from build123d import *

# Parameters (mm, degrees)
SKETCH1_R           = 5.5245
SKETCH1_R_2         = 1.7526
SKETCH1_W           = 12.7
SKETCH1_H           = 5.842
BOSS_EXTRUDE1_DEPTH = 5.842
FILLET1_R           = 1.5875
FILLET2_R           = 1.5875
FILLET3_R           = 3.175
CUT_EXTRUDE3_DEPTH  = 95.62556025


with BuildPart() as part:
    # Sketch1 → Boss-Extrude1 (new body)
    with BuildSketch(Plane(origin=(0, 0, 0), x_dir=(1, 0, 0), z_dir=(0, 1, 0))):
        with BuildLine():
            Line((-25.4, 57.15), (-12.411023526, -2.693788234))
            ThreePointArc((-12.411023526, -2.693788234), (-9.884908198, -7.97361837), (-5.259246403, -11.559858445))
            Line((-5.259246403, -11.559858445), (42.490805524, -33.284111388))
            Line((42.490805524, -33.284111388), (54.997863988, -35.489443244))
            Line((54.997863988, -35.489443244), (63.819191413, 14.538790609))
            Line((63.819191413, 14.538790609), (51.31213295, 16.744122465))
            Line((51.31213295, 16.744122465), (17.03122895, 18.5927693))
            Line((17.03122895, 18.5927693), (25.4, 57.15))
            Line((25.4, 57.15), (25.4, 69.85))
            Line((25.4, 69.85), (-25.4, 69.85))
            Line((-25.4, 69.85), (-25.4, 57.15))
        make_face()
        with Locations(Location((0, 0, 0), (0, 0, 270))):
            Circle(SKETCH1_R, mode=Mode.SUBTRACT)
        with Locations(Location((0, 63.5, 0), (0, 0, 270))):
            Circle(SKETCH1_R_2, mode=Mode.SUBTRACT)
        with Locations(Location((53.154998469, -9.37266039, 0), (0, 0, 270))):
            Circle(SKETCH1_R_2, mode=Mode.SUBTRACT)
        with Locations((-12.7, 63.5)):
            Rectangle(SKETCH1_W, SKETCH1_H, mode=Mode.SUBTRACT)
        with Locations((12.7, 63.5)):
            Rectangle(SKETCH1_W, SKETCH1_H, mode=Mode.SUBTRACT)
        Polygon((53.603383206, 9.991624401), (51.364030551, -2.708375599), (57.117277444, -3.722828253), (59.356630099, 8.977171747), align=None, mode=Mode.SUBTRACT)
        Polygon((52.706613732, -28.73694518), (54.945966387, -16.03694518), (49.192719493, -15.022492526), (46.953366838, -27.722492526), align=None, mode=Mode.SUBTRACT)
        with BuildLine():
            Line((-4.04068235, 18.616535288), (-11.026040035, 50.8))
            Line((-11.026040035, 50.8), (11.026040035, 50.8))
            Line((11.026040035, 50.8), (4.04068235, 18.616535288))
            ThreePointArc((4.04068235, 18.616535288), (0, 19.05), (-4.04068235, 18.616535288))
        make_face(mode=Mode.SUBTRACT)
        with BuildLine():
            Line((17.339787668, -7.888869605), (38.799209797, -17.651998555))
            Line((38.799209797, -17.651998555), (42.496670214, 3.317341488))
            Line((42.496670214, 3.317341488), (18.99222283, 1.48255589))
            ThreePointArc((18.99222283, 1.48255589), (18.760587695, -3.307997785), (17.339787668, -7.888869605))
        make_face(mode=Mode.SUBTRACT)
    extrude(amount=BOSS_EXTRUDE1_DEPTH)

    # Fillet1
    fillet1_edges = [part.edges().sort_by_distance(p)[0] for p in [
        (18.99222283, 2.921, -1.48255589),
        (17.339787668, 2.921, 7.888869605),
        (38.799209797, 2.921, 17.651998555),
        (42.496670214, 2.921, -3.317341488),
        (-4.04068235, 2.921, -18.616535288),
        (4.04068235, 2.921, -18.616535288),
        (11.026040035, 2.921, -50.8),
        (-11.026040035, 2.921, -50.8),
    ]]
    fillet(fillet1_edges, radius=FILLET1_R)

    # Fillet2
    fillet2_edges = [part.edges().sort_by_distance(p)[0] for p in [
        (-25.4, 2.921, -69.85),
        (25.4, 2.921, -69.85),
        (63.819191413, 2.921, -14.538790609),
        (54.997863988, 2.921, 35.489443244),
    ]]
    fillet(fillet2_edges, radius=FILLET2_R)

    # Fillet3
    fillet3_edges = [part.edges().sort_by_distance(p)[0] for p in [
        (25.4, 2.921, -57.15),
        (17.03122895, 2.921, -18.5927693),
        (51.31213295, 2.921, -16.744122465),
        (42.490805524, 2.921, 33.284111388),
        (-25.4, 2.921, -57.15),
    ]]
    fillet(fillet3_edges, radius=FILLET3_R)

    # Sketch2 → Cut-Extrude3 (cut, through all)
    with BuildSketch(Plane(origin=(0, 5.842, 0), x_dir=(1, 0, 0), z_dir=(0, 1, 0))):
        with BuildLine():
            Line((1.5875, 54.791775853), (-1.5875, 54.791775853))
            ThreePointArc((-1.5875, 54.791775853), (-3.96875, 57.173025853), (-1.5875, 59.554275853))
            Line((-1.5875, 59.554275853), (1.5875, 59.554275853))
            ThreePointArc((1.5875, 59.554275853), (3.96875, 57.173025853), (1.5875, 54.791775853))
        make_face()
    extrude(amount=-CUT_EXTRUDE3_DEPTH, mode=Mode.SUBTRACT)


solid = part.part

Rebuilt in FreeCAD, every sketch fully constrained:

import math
import FreeCAD as App
import Part
import Sketcher
from FreeCAD import Vector
Q = App.Units.Quantity


def edges_at(feature, points):
    """Names of the edges that pass closest to the given points."""
    edges = feature.Shape.Edges
    near = lambda p: min(range(len(edges)), key=lambda i: edges[i].distToShape(Part.Vertex(*p))[0])
    return sorted({f"Edge{near(p) + 1}" for p in points})


def add_polygon(sketch, points):
    """Adds a closed chain of lines whose ends are joined by coincident constraints."""
    first, n = sketch.GeometryCount, len(points)
    for a, b in zip(points, points[1:] + points[:1]):
        sketch.addGeometry(Part.LineSegment(App.Vector(*a, 0), App.Vector(*b, 0)), False)
    for i in range(n):
        sketch.addConstraint(Sketcher.Constraint("Coincident", first + i, 2, first + (i + 1) % n, 1))

doc = App.newDocument("Part")
body = doc.addObject("PartDesign::Body", "Body")

sketch1 = body.newObject("Sketcher::SketchObject", "Sketch")
sketch1.AttachmentSupport = (doc.getObject("XZ_Plane"), [""])
sketch1.MapMode = "FlatFace"
sketch1.addGeometry(Part.LineSegment(Vector(-25.4, -57.1, 0), Vector(-12.4, 2.7, 0)), False)
sketch1.addGeometry(Part.ArcOfCircle(Part.Circle(Vector(0, 0, 0), Vector(0, 0, 1), 12.7), math.radians(114), math.radians(168)), False)
sketch1.addGeometry(Part.LineSegment(Vector(-5.3, 11.6, 0), Vector(42.5, 33.3, 0)), False)
sketch1.addGeometry(Part.LineSegment(Vector(42.5, 33.3, 0), Vector(55, 35.5, 0)), False)
sketch1.addGeometry(Part.LineSegment(Vector(55, 35.5, 0), Vector(63.8, -14.5, 0)), False)
sketch1.addGeometry(Part.LineSegment(Vector(63.8, -14.5, 0), Vector(51.3, -16.7, 0)), False)
sketch1.addGeometry(Part.LineSegment(Vector(51.3, -16.7, 0), Vector(17, -18.6, 0)), False)
sketch1.addGeometry(Part.LineSegment(Vector(17, -18.6, 0), Vector(25.4, -57.1, 0)), False)
sketch1.addGeometry(Part.LineSegment(Vector(25.4, -57.1, 0), Vector(25.4, -69.8, 0)), False)
sketch1.addGeometry(Part.LineSegment(Vector(25.4, -69.8, 0), Vector(-25.4, -69.8, 0)), False)
sketch1.addGeometry(Part.LineSegment(Vector(-25.4, -69.8, 0), Vector(-25.4, -57.1, 0)), False)
sketch1.addGeometry(Part.Circle(Vector(0, 0, 0), Vector(0, 0, 1), 5.5), False)
sketch1.addGeometry(Part.LineSegment(Vector(38.8, 17.7, 0), Vector(17.3, 7.9, 0)), False)
sketch1.addGeometry(Part.ArcOfCircle(Part.Circle(Vector(0, 0, 0), Vector(0, 0, 1), 19), math.radians(-4), math.radians(24)), False)
sketch1.addGeometry(Part.LineSegment(Vector(19, -1.5, 0), Vector(42.5, -3.3, 0)), False)
sketch1.addGeometry(Part.LineSegment(Vector(42.5, -3.3, 0), Vector(38.8, 17.7, 0)), False)
add_polygon(sketch1, [(54.9, 16), (52.7, 28.7), (47, 27.7), (49.2, 15)])
sketch1.addGeometry(Part.Circle(Vector(53.2, 9.4, 0), Vector(0, 0, 1), 1.8), False)
add_polygon(sketch1, [(51.4, 2.7), (53.6, -10), (59.4, -9), (57.1, 3.7)])
sketch1.addGeometry(Part.ArcOfCircle(Part.Circle(Vector(0, 0, 0), Vector(0, 0, 1), 19), math.radians(-102), math.radians(-78)), False)
sketch1.addGeometry(Part.LineSegment(Vector(-4, -18.6, 0), Vector(-11, -50.8, 0)), False)
sketch1.addGeometry(Part.LineSegment(Vector(-11, -50.8, 0), Vector(11, -50.8, 0)), False)
sketch1.addGeometry(Part.LineSegment(Vector(11, -50.8, 0), Vector(4, -18.6, 0)), False)
add_polygon(sketch1, [(-6.3, -60.6), (-19.1, -60.6), (-19.1, -66.4), (-6.3, -66.4)])
sketch1.addGeometry(Part.Circle(Vector(0, -63.5, 0), Vector(0, 0, 1), 1.8), False)
add_polygon(sketch1, [(19.1, -60.6), (6.3, -60.6), (6.3, -66.4), (19.1, -66.4)])
sketch1.addConstraint([
    Sketcher.Constraint("Tangent", 0, 2, 1, 2),
    Sketcher.Constraint("Tangent", 1, 1, 2, 1),
    Sketcher.Constraint("Coincident", 2, 2, 3, 1),
    Sketcher.Constraint("Coincident", 3, 2, 4, 1),
    Sketcher.Constraint("Coincident", 4, 2, 5, 1),
    Sketcher.Constraint("Coincident", 5, 2, 6, 1),
    Sketcher.Constraint("Coincident", 6, 2, 7, 1),
    Sketcher.Constraint("Coincident", 7, 2, 8, 1),
    Sketcher.Constraint("Coincident", 8, 2, 9, 1),
    Sketcher.Constraint("Coincident", 9, 2, 10, 1),
    Sketcher.Constraint("Coincident", 10, 2, 0, 1),
    Sketcher.Constraint("Coincident", 12, 2, 13, 2),
    Sketcher.Constraint("Coincident", 13, 1, 14, 1),
    Sketcher.Constraint("Coincident", 14, 2, 15, 1),
    Sketcher.Constraint("Coincident", 15, 2, 12, 1),
    Sketcher.Constraint("Coincident", 25, 1, 26, 1),
    Sketcher.Constraint("Coincident", 26, 2, 27, 1),
    Sketcher.Constraint("Coincident", 27, 2, 28, 1),
    Sketcher.Constraint("Coincident", 28, 2, 25, 2),
    Sketcher.Constraint("Vertical", 8),
    Sketcher.Constraint("Horizontal", 9),
    Sketcher.Constraint("Vertical", 10),
    Sketcher.Constraint("Horizontal", 27),
    Sketcher.Constraint("Horizontal", 29),
    Sketcher.Constraint("Vertical", 30),
    Sketcher.Constraint("Horizontal", 31),
    Sketcher.Constraint("Vertical", 32),
    Sketcher.Constraint("Horizontal", 34),
    Sketcher.Constraint("Vertical", 35),
    Sketcher.Constraint("Horizontal", 36),
    Sketcher.Constraint("Vertical", 37),
    Sketcher.Constraint("Coincident", 1, 3, -1, 1),
    Sketcher.Constraint("Coincident", 11, 3, -1, 1),
    Sketcher.Constraint("Coincident", 13, 3, -1, 1),
    Sketcher.Constraint("Coincident", 25, 3, -1, 1),
    Sketcher.Constraint("Equal", 13, 25),
    Sketcher.Constraint("Equal", 20, 33),
    Sketcher.Constraint("Symmetric", 7, 2, 10, 2, -2),
    Sketcher.Constraint("Symmetric", 32, 2, 34, 2, -2),
    Sketcher.Constraint("Symmetric", 30, 2, 36, 2, -2),
    Sketcher.Constraint("PointOnObject", 33, 3, -2),
    Sketcher.Constraint("Perpendicular", 3, 4),
    Sketcher.Constraint("Perpendicular", 4, 5),
    Sketcher.Constraint("Parallel", 2, 12),
    Sketcher.Constraint("Perpendicular", 5, 15),
    Sketcher.Constraint("Parallel", 15, 16),
    Sketcher.Constraint("Perpendicular", 16, 17),
    Sketcher.Constraint("Perpendicular", 17, 18),
    Sketcher.Constraint("Perpendicular", 18, 19),
    Sketcher.Constraint("Perpendicular", 19, 21),
    Sketcher.Constraint("Perpendicular", 21, 22),
    Sketcher.Constraint("Perpendicular", 22, 23),
    Sketcher.Constraint("Perpendicular", 23, 24),
    Sketcher.Constraint("Parallel", 0, 26),
    Sketcher.Constraint("Parallel", 7, 28),
    Sketcher.Constraint("Horizontal", 25, 1, 28, 2),
    Sketcher.Constraint("Equal", 36, 8),
    Sketcher.Constraint("Equal", 3, 5),
    Sketcher.Constraint("Equal", 12, 14),
    Sketcher.Constraint("Equal", 18, 21),
    Sketcher.Constraint("Equal", 19, 22),
    Sketcher.Constraint("Equal", 26, 28),
    Sketcher.Constraint("Radius", 1, Q("0.5 in")),
    Sketcher.Constraint("DistanceX", 9, 2, 9, 1, Q("2 in")),
    Sketcher.Constraint("Radius", 13, Q("0.75 in")),
    Sketcher.Constraint("Distance", 4, Q("2 in")),
    Sketcher.Constraint("Diameter", 11, Q("0.435 in")),
    Sketcher.Constraint("Diameter", 20, Q("0.138 in")),
    Sketcher.Constraint("DistanceX", 29, 2, 29, 1, Q("0.5 in")),
    Sketcher.Constraint("DistanceY", 26, 2, -1, 1, Q("2 in")),
    Sketcher.Constraint("Angle", 3, Q("10 deg")),
    Sketcher.Constraint("Distance", 3, Q("0.5 in")),
    Sketcher.Constraint("DistanceY", 30, 2, 30, 1, Q("0.23 in")),
    Sketcher.Constraint("DistanceY", 33, 3, -1, 1, Q("2.5 in")),
    Sketcher.Constraint("DistanceY", 18, 2, 17, 2, Q("0.5 in")),
    Sketcher.Constraint("DistanceX", 32, 2, 34, 2, Q("0.5 in")),
    Sketcher.Constraint("Distance", 17, Q("0.23 in")),
    Sketcher.Constraint("DistanceY", 7, 2, -1, 1, Q("2.25 in")),
    Sketcher.Constraint("DistanceY", 29, 2, -1, 1, Q("2.385 in")),
    Sketcher.Constraint("DistanceX", 27, 1, 27, 2, Q("22.05208 mm")),
    Sketcher.Constraint("DistanceX", -1, 1, 20, 3, Q("53.154998 mm")),
    Sketcher.Constraint("DistanceY", -1, 1, 15, 2, Q("17.651999 mm")),
    Sketcher.Constraint("DistanceY", 14, 2, 20, 3, Q("12.690002 mm")),
    Sketcher.Constraint("DistanceY", 16, 2, 3, 2, Q("6.752498 mm")),
    Sketcher.Constraint("DistanceY", 5, 2, 21, 2, Q("6.752498 mm")),
    Sketcher.Constraint("Distance", 2, Q("52.459609 mm")),
    Sketcher.Constraint("Distance", 7, Q("39.454992 mm")),
    Sketcher.Constraint("Distance", 12, Q("23.575951 mm")),
    Sketcher.Constraint("DistanceY", -1, 1, 1, 1, Q("11.559858 mm")),
    Sketcher.Constraint("DistanceX", -1, 1, 18, 2, Q("49.192719 mm")),
    Sketcher.Constraint("DistanceX", -1, 1, 22, 2, Q("59.35663 mm")),
    Sketcher.Constraint("DistanceX", -1, 1, 13, 1, Q("18.992223 mm")),
])
pad1 = body.newObject("PartDesign::Pad", "Pad")
pad1.Profile = sketch1
pad1.Length = Q("0.23 in")
pad1.Reversed = True
doc.recompute()

fillet = body.newObject("PartDesign::Fillet", "Fillet")
fillet.Base = (pad1, edges_at(pad1, [
    (18.992, 2.921, -1.483),
    (17.34, 2.921, 7.889),
    (38.799, 2.921, 17.652),
    (42.497, 2.921, -3.317),
    (-4.041, 2.921, -18.617),
    (4.041, 2.921, -18.617),
    (11.026, 2.921, -50.8),
    (-11.026, 2.921, -50.8),
]))
fillet.Radius = Q("0.0625 in")
doc.recompute()

fillet2 = body.newObject("PartDesign::Fillet", "Fillet001")
fillet2.Base = (fillet, edges_at(fillet, [
    (-25.4, 2.921, -69.85),
    (25.4, 2.921, -69.85),
    (63.819, 2.921, -14.539),
    (54.998, 2.921, 35.489),
]))
fillet2.Radius = Q("0.0625 in")
doc.recompute()

fillet3 = body.newObject("PartDesign::Fillet", "Fillet002")
fillet3.Base = (fillet2, edges_at(fillet2, [
    (25.4, 2.921, -57.15),
    (17.031, 2.921, -18.593),
    (51.312, 2.921, -16.744),
    (42.491, 2.921, 33.284),
    (-25.4, 2.921, -57.15),
]))
fillet3.Radius = Q("0.125 in")

sketch2 = body.newObject("Sketcher::SketchObject", "Sketch001")
sketch2.AttachmentSupport = (doc.getObject("XZ_Plane"), [""])
sketch2.MapMode = "FlatFace"
sketch2.AttachmentOffset = App.Placement(Vector(0, 0, -0.23 * 25.4), App.Rotation())
sketch2.addGeometry([
    Part.LineSegment(Vector(-1.6, -54.8, 0), Vector(1.6, -54.8, 0)),
    Part.ArcOfCircle(Part.Circle(Vector(1.6, -57.2, 0), Vector(0, 0, 1), 2.4), math.radians(-90), math.radians(90)),
    Part.LineSegment(Vector(1.6, -59.6, 0), Vector(-1.6, -59.6, 0)),
    Part.ArcOfCircle(Part.Circle(Vector(-1.6, -57.2, 0), Vector(0, 0, 1), 2.4), math.radians(90), math.radians(270)),
], False)
sketch2.addConstraint([
    Sketcher.Constraint("Tangent", 0, 2, 1, 2),
    Sketcher.Constraint("Tangent", 1, 1, 2, 1),
    Sketcher.Constraint("Tangent", 2, 2, 3, 2),
    Sketcher.Constraint("Tangent", 3, 1, 0, 1),
    Sketcher.Constraint("Horizontal", 0),
    Sketcher.Constraint("Horizontal", 2),
    Sketcher.Constraint("Radius", 1, Q("0.09375 in")),
    Sketcher.Constraint("DistanceX", 0, 1, 0, 2, Q("0.125 in")),
    Sketcher.Constraint("DistanceX", -1, 1, 1, 3, Q("0.0625 in")),
    Sketcher.Constraint("DistanceY", 1, 3, -1, 1, Q("57.173026 mm")),
])
pocket1 = body.newObject("PartDesign::Pocket", "Pocket")
pocket1.Profile = sketch2
pocket1.Type = "ThroughAll"
pocket1.Reversed = True

doc.recompute()
